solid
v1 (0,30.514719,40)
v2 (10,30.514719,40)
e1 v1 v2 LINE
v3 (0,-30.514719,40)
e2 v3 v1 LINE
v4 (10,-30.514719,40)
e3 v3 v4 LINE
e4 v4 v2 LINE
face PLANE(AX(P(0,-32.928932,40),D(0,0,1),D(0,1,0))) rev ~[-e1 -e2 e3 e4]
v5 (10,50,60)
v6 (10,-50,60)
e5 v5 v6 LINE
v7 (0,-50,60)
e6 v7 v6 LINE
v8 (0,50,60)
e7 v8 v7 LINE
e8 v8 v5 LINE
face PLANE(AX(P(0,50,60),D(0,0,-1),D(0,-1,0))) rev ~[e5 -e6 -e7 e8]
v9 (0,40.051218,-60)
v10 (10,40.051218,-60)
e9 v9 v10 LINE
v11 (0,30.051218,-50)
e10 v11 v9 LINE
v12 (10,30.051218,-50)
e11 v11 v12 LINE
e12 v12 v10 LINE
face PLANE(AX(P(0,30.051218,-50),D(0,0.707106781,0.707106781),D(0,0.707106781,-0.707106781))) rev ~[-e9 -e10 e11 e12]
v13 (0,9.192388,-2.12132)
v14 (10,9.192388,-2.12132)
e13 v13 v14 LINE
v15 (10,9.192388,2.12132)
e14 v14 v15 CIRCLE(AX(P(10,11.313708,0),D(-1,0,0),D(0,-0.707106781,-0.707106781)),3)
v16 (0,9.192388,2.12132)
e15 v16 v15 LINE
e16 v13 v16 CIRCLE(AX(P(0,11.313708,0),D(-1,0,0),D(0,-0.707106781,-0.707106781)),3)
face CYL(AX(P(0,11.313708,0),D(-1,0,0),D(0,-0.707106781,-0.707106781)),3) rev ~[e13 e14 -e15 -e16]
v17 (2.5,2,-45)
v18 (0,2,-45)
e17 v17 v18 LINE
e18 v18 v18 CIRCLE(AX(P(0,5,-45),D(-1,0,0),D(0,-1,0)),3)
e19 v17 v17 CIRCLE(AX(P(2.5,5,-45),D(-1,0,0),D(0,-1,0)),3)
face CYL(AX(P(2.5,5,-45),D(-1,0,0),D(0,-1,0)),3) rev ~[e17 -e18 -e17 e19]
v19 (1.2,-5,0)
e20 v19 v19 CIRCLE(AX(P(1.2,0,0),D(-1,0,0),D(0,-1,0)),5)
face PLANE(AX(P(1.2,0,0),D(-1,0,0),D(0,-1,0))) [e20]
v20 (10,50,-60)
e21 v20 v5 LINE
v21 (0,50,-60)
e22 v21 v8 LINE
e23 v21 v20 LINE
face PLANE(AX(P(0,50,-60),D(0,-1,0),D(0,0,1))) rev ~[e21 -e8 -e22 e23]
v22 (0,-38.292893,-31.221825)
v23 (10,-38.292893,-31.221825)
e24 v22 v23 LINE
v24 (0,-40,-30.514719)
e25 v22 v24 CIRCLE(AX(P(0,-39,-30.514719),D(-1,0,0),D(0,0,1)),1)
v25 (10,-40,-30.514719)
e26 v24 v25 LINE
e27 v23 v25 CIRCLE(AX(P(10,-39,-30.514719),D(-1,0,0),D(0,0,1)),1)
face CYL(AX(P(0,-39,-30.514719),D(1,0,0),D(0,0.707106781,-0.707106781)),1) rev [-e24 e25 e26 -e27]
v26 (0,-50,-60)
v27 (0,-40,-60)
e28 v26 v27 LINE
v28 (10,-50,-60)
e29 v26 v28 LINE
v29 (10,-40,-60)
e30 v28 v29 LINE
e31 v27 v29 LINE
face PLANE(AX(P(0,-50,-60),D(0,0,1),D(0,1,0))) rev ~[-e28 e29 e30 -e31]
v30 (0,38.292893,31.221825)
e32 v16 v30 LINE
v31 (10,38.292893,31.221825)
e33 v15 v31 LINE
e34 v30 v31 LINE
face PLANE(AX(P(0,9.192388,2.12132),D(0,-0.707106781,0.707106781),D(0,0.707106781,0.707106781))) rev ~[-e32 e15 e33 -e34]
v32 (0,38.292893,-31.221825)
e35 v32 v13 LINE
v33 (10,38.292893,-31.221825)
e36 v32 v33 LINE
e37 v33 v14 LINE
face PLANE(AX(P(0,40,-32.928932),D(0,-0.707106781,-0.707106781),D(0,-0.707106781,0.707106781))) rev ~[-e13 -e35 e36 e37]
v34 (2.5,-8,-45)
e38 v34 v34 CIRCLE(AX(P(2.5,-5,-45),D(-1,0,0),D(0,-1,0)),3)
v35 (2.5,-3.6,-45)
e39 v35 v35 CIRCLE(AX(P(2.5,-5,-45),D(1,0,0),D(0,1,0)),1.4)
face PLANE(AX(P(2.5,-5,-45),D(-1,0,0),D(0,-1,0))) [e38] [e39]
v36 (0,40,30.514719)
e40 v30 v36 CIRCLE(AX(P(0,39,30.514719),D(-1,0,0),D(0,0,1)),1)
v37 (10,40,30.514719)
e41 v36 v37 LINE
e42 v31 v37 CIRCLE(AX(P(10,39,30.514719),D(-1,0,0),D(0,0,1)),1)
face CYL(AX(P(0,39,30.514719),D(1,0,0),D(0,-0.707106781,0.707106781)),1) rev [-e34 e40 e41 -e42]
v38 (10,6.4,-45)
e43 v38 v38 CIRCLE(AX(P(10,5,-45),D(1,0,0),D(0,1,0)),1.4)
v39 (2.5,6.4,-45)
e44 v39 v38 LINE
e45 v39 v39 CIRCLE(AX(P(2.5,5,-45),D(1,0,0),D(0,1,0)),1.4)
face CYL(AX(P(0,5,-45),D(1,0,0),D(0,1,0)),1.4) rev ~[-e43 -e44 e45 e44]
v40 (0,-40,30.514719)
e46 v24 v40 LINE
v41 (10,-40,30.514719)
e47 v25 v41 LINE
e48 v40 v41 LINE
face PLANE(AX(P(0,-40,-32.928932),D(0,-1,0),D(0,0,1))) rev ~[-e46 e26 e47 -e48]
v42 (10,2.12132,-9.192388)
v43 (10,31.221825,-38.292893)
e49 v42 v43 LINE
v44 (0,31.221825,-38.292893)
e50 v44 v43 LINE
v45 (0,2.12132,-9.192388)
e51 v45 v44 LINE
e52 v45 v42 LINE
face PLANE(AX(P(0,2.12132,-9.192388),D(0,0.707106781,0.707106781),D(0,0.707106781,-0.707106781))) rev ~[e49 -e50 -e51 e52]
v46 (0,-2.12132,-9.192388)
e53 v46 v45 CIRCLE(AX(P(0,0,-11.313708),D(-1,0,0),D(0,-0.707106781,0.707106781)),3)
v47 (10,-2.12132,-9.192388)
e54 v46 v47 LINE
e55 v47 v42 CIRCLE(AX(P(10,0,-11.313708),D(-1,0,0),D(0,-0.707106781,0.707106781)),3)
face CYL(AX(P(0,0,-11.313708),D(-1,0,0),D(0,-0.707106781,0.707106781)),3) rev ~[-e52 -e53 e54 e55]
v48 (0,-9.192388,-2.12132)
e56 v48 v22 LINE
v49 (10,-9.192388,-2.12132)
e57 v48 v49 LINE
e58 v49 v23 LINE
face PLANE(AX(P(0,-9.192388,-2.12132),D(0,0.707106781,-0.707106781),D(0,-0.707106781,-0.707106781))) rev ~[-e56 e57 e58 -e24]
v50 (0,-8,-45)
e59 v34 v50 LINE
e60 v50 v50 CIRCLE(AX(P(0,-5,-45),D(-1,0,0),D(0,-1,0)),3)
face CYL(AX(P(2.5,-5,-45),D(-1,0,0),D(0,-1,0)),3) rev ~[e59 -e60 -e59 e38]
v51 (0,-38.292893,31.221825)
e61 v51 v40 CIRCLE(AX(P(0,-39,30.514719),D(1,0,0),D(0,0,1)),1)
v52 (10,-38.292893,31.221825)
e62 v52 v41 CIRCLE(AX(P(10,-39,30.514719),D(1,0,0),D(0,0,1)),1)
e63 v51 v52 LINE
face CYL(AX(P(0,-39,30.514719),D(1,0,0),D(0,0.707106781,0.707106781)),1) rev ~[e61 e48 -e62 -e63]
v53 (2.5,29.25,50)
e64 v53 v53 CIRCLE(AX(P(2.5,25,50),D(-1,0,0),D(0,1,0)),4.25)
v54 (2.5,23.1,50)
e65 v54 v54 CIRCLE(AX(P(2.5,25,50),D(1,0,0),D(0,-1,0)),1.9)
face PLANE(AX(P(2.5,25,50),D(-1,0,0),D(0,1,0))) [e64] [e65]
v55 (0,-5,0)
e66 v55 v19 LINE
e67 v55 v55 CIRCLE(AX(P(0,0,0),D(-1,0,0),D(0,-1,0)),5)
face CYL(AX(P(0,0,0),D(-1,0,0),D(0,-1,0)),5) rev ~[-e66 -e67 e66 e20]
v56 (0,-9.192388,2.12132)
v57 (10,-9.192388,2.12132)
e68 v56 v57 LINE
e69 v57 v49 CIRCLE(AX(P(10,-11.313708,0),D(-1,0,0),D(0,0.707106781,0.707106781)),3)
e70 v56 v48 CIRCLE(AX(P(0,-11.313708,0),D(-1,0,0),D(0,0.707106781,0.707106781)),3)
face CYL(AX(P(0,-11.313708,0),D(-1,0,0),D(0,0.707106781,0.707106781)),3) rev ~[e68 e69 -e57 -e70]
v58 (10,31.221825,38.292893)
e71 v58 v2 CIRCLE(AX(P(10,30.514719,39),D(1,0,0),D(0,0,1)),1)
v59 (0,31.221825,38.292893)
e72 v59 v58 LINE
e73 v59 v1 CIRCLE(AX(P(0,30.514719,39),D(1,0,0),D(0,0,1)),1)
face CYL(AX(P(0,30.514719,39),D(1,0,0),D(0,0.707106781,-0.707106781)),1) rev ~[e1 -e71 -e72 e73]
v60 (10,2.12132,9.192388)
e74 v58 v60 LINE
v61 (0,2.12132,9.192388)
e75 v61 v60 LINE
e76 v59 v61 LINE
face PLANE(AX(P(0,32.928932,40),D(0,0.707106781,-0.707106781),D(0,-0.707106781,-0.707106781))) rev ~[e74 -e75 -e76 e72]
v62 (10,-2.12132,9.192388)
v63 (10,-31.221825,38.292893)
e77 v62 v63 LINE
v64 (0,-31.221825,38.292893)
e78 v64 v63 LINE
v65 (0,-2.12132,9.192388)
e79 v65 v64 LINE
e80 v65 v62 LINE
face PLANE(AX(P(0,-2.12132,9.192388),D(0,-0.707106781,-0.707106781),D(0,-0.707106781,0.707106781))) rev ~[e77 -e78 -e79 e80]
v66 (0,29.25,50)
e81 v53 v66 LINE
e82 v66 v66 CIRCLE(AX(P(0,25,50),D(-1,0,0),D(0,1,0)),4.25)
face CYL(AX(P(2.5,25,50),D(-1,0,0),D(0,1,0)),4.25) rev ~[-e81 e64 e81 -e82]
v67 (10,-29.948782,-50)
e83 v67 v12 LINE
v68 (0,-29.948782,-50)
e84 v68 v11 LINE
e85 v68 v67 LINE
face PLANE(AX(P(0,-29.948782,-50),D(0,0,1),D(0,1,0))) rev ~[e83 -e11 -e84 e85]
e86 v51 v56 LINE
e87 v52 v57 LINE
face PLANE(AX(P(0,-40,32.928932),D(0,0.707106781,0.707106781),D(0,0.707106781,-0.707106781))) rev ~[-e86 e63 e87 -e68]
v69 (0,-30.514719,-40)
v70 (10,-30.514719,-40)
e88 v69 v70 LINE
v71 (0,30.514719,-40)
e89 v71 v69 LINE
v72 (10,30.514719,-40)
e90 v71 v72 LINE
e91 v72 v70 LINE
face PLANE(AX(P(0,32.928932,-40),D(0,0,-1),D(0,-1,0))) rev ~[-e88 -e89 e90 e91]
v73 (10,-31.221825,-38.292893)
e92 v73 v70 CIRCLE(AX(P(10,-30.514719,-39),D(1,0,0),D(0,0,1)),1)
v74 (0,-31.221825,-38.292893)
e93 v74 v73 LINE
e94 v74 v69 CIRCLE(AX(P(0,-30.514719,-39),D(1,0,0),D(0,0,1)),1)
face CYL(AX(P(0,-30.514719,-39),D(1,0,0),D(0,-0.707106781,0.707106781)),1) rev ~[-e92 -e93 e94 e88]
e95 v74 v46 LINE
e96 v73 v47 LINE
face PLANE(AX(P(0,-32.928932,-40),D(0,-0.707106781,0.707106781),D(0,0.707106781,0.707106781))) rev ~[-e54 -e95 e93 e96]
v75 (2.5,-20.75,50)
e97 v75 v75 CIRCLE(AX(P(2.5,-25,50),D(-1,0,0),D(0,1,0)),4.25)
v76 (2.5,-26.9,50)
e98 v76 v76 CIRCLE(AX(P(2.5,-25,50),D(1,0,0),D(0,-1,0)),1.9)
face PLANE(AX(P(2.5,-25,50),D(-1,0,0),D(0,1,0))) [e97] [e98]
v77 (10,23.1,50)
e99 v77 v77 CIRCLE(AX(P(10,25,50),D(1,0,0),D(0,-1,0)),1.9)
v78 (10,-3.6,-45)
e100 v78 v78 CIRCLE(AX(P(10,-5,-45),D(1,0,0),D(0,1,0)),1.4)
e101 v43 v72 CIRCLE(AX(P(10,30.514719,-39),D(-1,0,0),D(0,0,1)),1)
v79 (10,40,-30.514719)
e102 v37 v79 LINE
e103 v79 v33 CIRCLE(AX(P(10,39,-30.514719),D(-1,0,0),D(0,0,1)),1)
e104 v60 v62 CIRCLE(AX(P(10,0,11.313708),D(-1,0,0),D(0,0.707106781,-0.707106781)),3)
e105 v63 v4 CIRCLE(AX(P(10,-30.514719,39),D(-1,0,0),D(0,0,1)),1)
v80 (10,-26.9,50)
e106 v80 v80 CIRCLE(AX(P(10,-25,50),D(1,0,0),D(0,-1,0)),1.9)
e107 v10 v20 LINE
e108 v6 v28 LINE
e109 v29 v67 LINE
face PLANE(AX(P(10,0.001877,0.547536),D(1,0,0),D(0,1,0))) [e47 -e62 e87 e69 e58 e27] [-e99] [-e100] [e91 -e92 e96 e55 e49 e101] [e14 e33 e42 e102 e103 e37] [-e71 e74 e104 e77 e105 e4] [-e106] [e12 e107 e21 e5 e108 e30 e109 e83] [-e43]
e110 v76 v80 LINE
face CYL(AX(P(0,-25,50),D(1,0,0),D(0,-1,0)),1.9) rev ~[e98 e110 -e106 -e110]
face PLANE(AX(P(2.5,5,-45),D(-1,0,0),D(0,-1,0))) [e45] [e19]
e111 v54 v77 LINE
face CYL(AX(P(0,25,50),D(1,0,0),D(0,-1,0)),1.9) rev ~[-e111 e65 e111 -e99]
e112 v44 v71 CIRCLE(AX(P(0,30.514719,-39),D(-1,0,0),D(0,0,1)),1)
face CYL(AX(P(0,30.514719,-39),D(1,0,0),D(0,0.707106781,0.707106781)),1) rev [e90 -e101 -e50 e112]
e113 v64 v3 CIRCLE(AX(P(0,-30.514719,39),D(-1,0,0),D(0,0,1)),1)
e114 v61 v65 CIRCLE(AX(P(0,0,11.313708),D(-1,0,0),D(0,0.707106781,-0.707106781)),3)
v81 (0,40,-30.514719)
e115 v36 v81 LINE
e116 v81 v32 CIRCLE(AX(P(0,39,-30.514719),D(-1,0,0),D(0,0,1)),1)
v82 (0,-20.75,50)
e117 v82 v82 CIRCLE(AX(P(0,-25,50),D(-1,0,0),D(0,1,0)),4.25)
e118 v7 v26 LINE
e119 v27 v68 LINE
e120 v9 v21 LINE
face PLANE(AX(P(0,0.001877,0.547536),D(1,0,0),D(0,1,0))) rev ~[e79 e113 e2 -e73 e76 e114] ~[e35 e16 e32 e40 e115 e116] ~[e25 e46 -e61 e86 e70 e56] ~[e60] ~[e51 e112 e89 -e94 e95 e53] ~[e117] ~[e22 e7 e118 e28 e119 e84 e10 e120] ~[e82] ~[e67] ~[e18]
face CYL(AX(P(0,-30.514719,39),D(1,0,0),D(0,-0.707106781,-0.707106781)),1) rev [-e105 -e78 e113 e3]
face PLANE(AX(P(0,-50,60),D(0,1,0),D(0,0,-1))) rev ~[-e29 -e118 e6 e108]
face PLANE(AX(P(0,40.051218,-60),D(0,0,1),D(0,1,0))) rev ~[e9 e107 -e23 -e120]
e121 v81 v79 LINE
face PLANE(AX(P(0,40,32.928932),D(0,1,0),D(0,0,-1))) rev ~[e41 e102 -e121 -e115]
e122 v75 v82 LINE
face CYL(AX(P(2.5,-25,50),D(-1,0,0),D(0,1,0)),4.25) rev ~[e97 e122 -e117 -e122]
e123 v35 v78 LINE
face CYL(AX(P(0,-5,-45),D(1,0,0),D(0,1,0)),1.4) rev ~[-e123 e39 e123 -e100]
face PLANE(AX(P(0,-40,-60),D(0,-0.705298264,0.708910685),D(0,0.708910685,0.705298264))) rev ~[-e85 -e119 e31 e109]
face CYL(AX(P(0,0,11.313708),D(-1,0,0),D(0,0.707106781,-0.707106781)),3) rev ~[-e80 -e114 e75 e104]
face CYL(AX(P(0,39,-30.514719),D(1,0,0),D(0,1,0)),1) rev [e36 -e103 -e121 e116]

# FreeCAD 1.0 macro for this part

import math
import FreeCAD as App
import Part
import Sketcher
from FreeCAD import Vector


def edges_at(feature, points):
    """Names of the edges that pass closest to the given points."""
    edges = feature.Shape.Edges
    near = lambda p: min(range(len(edges)), key=lambda i: edges[i].distToShape(Part.Vertex(*p))[0])
    return sorted({f"Edge{near(p) + 1}" for p in points})


def add_polygon(sketch, points):
    """Adds a closed chain of lines whose ends are joined by coincident constraints."""
    first, n = sketch.GeometryCount, len(points)
    for a, b in zip(points, points[1:] + points[:1]):
        sketch.addGeometry(Part.LineSegment(App.Vector(*a, 0), App.Vector(*b, 0)), False)
    for i in range(n):
        sketch.addConstraint(Sketcher.Constraint("Coincident", first + i, 2, first + (i + 1) % n, 1))

doc = App.newDocument("Part")
params = doc.addObject("Spreadsheet::Sheet", "Params")
for row, (alias, value) in enumerate([
    ("sketch1_radius", "3 mm"),
    ("sketch1_width", "100 mm"),
    ("sketch1_width2", "10 mm"),
    ("sketch1_width3", "60 mm"),
    ("sketch1_height", "120 mm"),
    ("pad1_length", "10 mm"),
    ("fillet_radius", "1 mm"),
    ("sketch2_diameter", "3.8 mm"),
    ("hole_diameter", "3.8 mm"),
    ("hole_cbore_diameter", "8.5 mm"),
    ("hole_cbore_depth", "2.5 mm"),
    ("sketch3_diameter", "10 mm"),
    ("pocket1_length", "1.2 mm"),
    ("sketch4_diameter", "2.8 mm"),
    ("hole2_diameter", "2.8 mm"),
    ("hole2_cbore_diameter", "6 mm"),
    ("hole2_cbore_depth", "2.5 mm"),
], start=1):
    params.set(f"A{row}", alias)
    params.set(f"B{row}", "=" + value)
    params.setAlias(f"B{row}", alias)

body = doc.addObject("PartDesign::Body", "Body")

# Sketch on YZ plane
sketch1 = doc.addObject("Sketcher::SketchObject", "Sketch")
body.addObject(sketch1)
sketch1.AttachmentSupport = (doc.YZ_Plane, [""])
sketch1.MapMode = "FlatFace"
add_polygon(sketch1, [(40.1, -60), (50, -60), (50, 60), (-50, 60), (-50, -60), (-40, -60), (-29.9, -50), (30.1, -50)])  # lines 0-7
sketch1.addGeometry(Part.ArcOfCircle(Part.Circle(Vector(0, -11.3, 0), Vector(0, 0, 1), 3), math.radians(45), math.radians(135)), False)  # 8
sketch1.addGeometry(Part.LineSegment(Vector(2.1, -9.2, 0), Vector(32.9, -40, 0)), False)  # 9
sketch1.addGeometry(Part.LineSegment(Vector(32.9, -40, 0), Vector(-32.9, -40, 0)), False)  # 10
sketch1.addGeometry(Part.LineSegment(Vector(-32.9, -40, 0), Vector(-2.1, -9.2, 0)), False)  # 11
sketch1.addGeometry(Part.ArcOfCircle(Part.Circle(Vector(-11.3, 0, 0), Vector(0, 0, 1), 3), math.radians(-45), math.radians(45)), False)  # 12
sketch1.addGeometry(Part.LineSegment(Vector(-9.2, -2.1, 0), Vector(-40, -32.9, 0)), False)  # 13
sketch1.addGeometry(Part.LineSegment(Vector(-40, -32.9, 0), Vector(-40, 32.9, 0)), False)  # 14
sketch1.addGeometry(Part.LineSegment(Vector(-40, 32.9, 0), Vector(-9.2, 2.1, 0)), False)  # 15
sketch1.addGeometry(Part.LineSegment(Vector(9.2, 2.1, 0), Vector(40, 32.9, 0)), False)  # 16
sketch1.addGeometry(Part.LineSegment(Vector(40, 32.9, 0), Vector(40, -32.9, 0)), False)  # 17
sketch1.addGeometry(Part.LineSegment(Vector(40, -32.9, 0), Vector(9.2, -2.1, 0)), False)  # 18
sketch1.addGeometry(Part.ArcOfCircle(Part.Circle(Vector(11.3, 0, 0), Vector(0, 0, 1), 3), math.radians(135), math.radians(225)), False)  # 19
sketch1.addGeometry(Part.LineSegment(Vector(-2.1, 9.2, 0), Vector(-32.9, 40, 0)), False)  # 20
sketch1.addGeometry(Part.LineSegment(Vector(-32.9, 40, 0), Vector(32.9, 40, 0)), False)  # 21
sketch1.addGeometry(Part.LineSegment(Vector(32.9, 40, 0), Vector(2.1, 9.2, 0)), False)  # 22
sketch1.addGeometry(Part.ArcOfCircle(Part.Circle(Vector(0, 11.3, 0), Vector(0, 0, 1), 3), math.radians(-135), math.radians(-45)), False)  # 23
sketch1.addConstraint([
    Sketcher.Constraint("Tangent", 8, 1, 9, 1),
    Sketcher.Constraint("Coincident", 9, 2, 10, 1),
    Sketcher.Constraint("Coincident", 10, 2, 11, 1),
    Sketcher.Constraint("Tangent", 11, 2, 8, 2),
    Sketcher.Constraint("Tangent", 12, 1, 13, 1),
    Sketcher.Constraint("Coincident", 13, 2, 14, 1),
    Sketcher.Constraint("Coincident", 14, 2, 15, 1),
    Sketcher.Constraint("Tangent", 15, 2, 12, 2),
    Sketcher.Constraint("Coincident", 16, 2, 17, 1),
    Sketcher.Constraint("Coincident", 17, 2, 18, 1),
    Sketcher.Constraint("Tangent", 18, 2, 19, 2),
    Sketcher.Constraint("Tangent", 19, 1, 16, 1),
    Sketcher.Constraint("Coincident", 20, 2, 21, 1),
    Sketcher.Constraint("Coincident", 21, 2, 22, 1),
    Sketcher.Constraint("Tangent", 22, 2, 23, 2),
    Sketcher.Constraint("Tangent", 23, 1, 20, 1),
    Sketcher.Constraint("Horizontal", 0),
    Sketcher.Constraint("Vertical", 1),
    Sketcher.Constraint("Horizontal", 2),
    Sketcher.Constraint("Vertical", 3),
    Sketcher.Constraint("Horizontal", 4),
    Sketcher.Constraint("Horizontal", 6),
    Sketcher.Constraint("Horizontal", 10),
    Sketcher.Constraint("Vertical", 14),
    Sketcher.Constraint("Vertical", 17),
    Sketcher.Constraint("Horizontal", 21),
    Sketcher.Constraint("Equal", 8, 12),
    Sketcher.Constraint("Equal", 12, 19),
    Sketcher.Constraint("Equal", 19, 23),
    Sketcher.Constraint("Symmetric", 12, 3, 19, 3, -1, 1),
    Sketcher.Constraint("Symmetric", 8, 3, 23, 3, -1, 1),
    Sketcher.Constraint("Symmetric", 0, 2, 2, 2, -1, 1),
    Sketcher.Constraint("Symmetric", 13, 2, 16, 2, -1, 1),
    Sketcher.Constraint("Symmetric", 9, 2, 20, 2, -1, 1),
    Sketcher.Constraint("Symmetric", 8, 1, 11, 2, -2),
    Sketcher.Constraint("Symmetric", 12, 1, 18, 2, -2),
    Sketcher.Constraint("Parallel", 7, 9),
    Sketcher.Constraint("Perpendicular", 9, 11),
    Sketcher.Constraint("Parallel", 11, 13),
    Sketcher.Constraint("Perpendicular", 13, 15),
    Sketcher.Constraint("Perpendicular", 20, 22),
    Sketcher.Constraint("Horizontal", 0, 2, 3, 2),
    Sketcher.Constraint("Vertical", 4, 2, 13, 2),
    Sketcher.Constraint("Equal", 21, 14),
    Sketcher.Constraint("Radius", 8, 3.0),
    Sketcher.Constraint("DistanceX", 2, 2, 2, 1, 100.0),
    Sketcher.Constraint("DistanceX", 4, 1, 4, 2, 10.0),
    Sketcher.Constraint("DistanceX", 6, 1, 6, 2, 60.0),
    Sketcher.Constraint("DistanceY", 1, 1, 1, 2, 120.0),
    Sketcher.Constraint("DistanceY", 5, 2, -1, 1, 50.0),
    Sketcher.Constraint("DistanceY", 9, 2, -1, 1, 40.0),
    Sketcher.Constraint("Distance", 5, 14.178399),
    Sketcher.Constraint("DistanceX", 10, 2, 10, 1, 65.857864),
])
sketch1.setExpression("Constraints[52]", "Params.sketch1_radius")
sketch1.setExpression("Constraints[53]", "Params.sketch1_width")
sketch1.setExpression("Constraints[54]", "Params.sketch1_width2")
sketch1.setExpression("Constraints[55]", "Params.sketch1_width3")
sketch1.setExpression("Constraints[56]", "Params.sketch1_height")
pad1 = doc.addObject("PartDesign::Pad", "Pad")
body.addObject(pad1)
pad1.Profile = sketch1
pad1.setExpression("Length", "Params.pad1_length")
doc.recompute()

fillet = doc.addObject("PartDesign::Fillet", "Fillet")
body.addObject(fillet)
fillet.Base = (pad1, edges_at(pad1, [
    (5, -32.929, 40),
    (5, 32.929, 40),
    (5, -40, 32.929),
    (5, -40, -32.929),
    (5, -32.929, -40),
    (5, 40, 32.929),
    (5, 40, -32.929),
    (5, 32.929, -40),
]))
fillet.setExpression("Radius", "Params.fillet_radius")

# Sketch on YZ plane
sketch2 = doc.addObject("Sketcher::SketchObject", "Sketch001")
body.addObject(sketch2)
sketch2.AttachmentSupport = (doc.YZ_Plane, [""])
sketch2.MapMode = "FlatFace"
sketch2.addGeometry([
    Part.Circle(Vector(-25, 50, 0), Vector(0, 0, 1), 1.9),
    Part.Circle(Vector(25, 50, 0), Vector(0, 0, 1), 1.9),
], False)
sketch2.addConstraint([
    Sketcher.Constraint("Equal", 0, 1),
    Sketcher.Constraint("Symmetric", 0, 3, 1, 3, -2),
    Sketcher.Constraint("Diameter", 0, 3.8),
    Sketcher.Constraint("DistanceX", 0, 3, -1, 1, 25.0),
    Sketcher.Constraint("DistanceY", -1, 1, 0, 3, 50.0),
])
sketch2.setExpression("Constraints[2]", "Params.sketch2_diameter")
doc.recompute()
hole = doc.addObject("PartDesign::Hole", "Hole")
body.addObject(hole)
hole.Profile = sketch2
hole.ThreadType = "None"
hole.setExpression("Diameter", "Params.hole_diameter")
hole.DepthType = "ThroughAll"
hole.HoleCutType = "Counterbore"
hole.setExpression("HoleCutDiameter", "Params.hole_cbore_diameter")
hole.setExpression("HoleCutDepth", "Params.hole_cbore_depth")
hole.Reversed = True

# Sketch on YZ plane
sketch3 = doc.addObject("Sketcher::SketchObject", "Sketch002")
body.addObject(sketch3)
sketch3.AttachmentSupport = (doc.YZ_Plane, [""])
sketch3.MapMode = "FlatFace"
sketch3.addGeometry(Part.Circle(Vector(0, 0, 0), Vector(0, 0, 1), 5), False)
sketch3.addConstraint([
    Sketcher.Constraint("Coincident", 0, 3, -1, 1),
    Sketcher.Constraint("Diameter", 0, 10.0),
])
sketch3.setExpression("Constraints[1]", "Params.sketch3_diameter")
pocket1 = doc.addObject("PartDesign::Pocket", "Pocket")
body.addObject(pocket1)
pocket1.Profile = sketch3
pocket1.setExpression("Length", "Params.pocket1_length")
pocket1.Reversed = True

# Sketch on YZ plane
sketch4 = doc.addObject("Sketcher::SketchObject", "Sketch003")
body.addObject(sketch4)
sketch4.AttachmentSupport = (doc.YZ_Plane, [""])
sketch4.MapMode = "FlatFace"
sketch4.addGeometry([
    Part.Circle(Vector(5, -45, 0), Vector(0, 0, 1), 1.4),
    Part.Circle(Vector(-5, -45, 0), Vector(0, 0, 1), 1.4),
], False)
sketch4.addConstraint([
    Sketcher.Constraint("Equal", 0, 1),
    Sketcher.Constraint("Symmetric", 0, 3, 1, 3, -2),
    Sketcher.Constraint("Diameter", 0, 2.8),
    Sketcher.Constraint("DistanceX", -1, 1, 0, 3, 5.0),
    Sketcher.Constraint("DistanceY", 0, 3, -1, 1, 45.0),
])
sketch4.setExpression("Constraints[2]", "Params.sketch4_diameter")
doc.recompute()
hole2 = doc.addObject("PartDesign::Hole", "Hole001")
body.addObject(hole2)
hole2.Profile = sketch4
hole2.ThreadType = "None"
hole2.setExpression("Diameter", "Params.hole2_diameter")
hole2.DepthType = "ThroughAll"
hole2.HoleCutType = "Counterbore"
hole2.setExpression("HoleCutDiameter", "Params.hole2_cbore_diameter")
hole2.setExpression("HoleCutDepth", "Params.hole2_cbore_depth")
hole2.Reversed = True

doc.recompute()
